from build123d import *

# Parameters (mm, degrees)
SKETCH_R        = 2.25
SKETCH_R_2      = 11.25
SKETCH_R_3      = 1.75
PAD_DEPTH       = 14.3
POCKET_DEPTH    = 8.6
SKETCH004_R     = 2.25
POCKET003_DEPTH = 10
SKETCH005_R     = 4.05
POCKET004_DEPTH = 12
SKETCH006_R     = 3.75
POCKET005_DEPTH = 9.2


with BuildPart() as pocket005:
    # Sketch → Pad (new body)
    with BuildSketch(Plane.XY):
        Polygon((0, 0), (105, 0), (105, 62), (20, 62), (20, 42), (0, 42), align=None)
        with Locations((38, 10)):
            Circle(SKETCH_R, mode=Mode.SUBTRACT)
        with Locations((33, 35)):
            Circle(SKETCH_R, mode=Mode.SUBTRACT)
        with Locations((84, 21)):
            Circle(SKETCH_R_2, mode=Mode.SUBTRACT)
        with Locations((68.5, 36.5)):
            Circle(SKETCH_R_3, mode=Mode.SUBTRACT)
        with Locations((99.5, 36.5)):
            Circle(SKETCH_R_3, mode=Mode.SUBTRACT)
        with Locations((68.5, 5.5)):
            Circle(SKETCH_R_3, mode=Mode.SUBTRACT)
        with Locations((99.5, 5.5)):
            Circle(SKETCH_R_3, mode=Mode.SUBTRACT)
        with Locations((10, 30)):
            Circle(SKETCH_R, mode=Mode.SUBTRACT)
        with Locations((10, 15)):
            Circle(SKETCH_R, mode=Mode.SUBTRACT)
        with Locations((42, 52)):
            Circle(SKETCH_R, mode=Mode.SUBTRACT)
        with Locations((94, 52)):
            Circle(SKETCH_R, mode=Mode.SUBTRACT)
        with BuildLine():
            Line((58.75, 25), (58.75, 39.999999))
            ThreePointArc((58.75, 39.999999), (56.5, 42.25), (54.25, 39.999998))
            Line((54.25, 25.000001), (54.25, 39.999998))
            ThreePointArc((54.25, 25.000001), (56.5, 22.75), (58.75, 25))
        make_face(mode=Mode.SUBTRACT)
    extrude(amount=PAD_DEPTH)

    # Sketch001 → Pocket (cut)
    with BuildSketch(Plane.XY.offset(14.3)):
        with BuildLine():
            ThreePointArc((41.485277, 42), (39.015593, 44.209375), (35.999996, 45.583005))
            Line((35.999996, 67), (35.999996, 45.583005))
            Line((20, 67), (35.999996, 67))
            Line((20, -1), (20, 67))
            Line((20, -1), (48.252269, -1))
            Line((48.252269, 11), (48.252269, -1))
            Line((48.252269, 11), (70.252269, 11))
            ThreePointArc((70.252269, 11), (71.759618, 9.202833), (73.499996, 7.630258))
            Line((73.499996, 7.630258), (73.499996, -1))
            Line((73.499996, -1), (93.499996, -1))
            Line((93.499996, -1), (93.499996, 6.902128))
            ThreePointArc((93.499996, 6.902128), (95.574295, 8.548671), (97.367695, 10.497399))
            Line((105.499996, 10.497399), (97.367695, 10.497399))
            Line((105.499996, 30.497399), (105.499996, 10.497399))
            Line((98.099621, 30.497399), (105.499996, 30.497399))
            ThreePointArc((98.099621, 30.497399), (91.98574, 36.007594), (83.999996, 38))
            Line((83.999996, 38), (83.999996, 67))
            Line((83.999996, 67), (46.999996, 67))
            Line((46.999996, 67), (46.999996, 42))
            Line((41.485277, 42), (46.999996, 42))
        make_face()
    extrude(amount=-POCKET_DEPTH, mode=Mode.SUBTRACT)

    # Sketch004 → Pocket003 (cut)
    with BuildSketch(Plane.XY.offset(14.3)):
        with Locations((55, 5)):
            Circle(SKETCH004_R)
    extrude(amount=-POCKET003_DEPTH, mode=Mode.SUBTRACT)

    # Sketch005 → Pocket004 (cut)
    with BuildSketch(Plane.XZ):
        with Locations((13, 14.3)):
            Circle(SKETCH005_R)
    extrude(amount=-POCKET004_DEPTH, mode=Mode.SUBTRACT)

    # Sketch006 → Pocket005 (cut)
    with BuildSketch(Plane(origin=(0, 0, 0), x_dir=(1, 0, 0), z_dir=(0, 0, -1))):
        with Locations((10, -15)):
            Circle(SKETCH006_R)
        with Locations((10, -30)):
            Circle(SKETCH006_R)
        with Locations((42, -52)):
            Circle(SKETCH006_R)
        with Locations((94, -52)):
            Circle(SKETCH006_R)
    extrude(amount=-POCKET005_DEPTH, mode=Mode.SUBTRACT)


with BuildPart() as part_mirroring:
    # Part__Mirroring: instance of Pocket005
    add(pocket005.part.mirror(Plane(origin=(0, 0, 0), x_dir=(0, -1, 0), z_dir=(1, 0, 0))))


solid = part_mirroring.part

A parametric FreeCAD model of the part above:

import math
import FreeCAD as App
import Part
import Sketcher
from FreeCAD import Vector
Q = App.Units.Quantity

doc = App.newDocument("Part")
body = doc.addObject("PartDesign::Body", "Body")

# Sketch on XY plane
sketch1 = body.newObject("Sketcher::SketchObject", "Sketch")
sketch1.AttachmentSupport = (doc.getObject("XY_Plane"), [""])
sketch1.MapMode = "FlatFace"
sketch1.addGeometry(Part.LineSegment(Vector(0, 0, 0), Vector(105, 0, 0)), False)
sketch1.addGeometry(Part.LineSegment(Vector(105, 0, 0), Vector(105, 62, 0)), False)
sketch1.addGeometry(Part.LineSegment(Vector(105, 62, 0), Vector(20, 62, 0)), False)
sketch1.addGeometry(Part.LineSegment(Vector(20, 62, 0), Vector(20, 42, 0)), False)
sketch1.addGeometry(Part.LineSegment(Vector(20, 42, 0), Vector(0, 42, 0)), False)
sketch1.addGeometry(Part.LineSegment(Vector(0, 42, 0), Vector(0, 0, 0)), False)
sketch1.addGeometry(Part.Circle(Vector(10, 15, 0), Vector(0, 0, 1), 2.2), False)
sketch1.addGeometry(Part.Circle(Vector(38, 10, 0), Vector(0, 0, 1), 2.2), False)
sketch1.addGeometry(Part.Circle(Vector(68.5, 5.5, 0), Vector(0, 0, 1), 1.8), False)
sketch1.addGeometry(Part.Circle(Vector(99.5, 5.5, 0), Vector(0, 0, 1), 1.8), False)
sketch1.addGeometry(Part.Circle(Vector(84, 21, 0), Vector(0, 0, 1), 11.2), False)
sketch1.addGeometry(Part.Circle(Vector(10, 30, 0), Vector(0, 0, 1), 2.2), False)
sketch1.addGeometry(Part.Circle(Vector(33, 35, 0), Vector(0, 0, 1), 2.2), False)
sketch1.addGeometry(Part.Circle(Vector(42, 52, 0), Vector(0, 0, 1), 2.2), False)
sketch1.addGeometry(Part.LineSegment(Vector(58.8, 40, 0), Vector(58.8, 25, 0)), False)
sketch1.addGeometry(Part.ArcOfCircle(Part.Circle(Vector(56.5, 25, 0), Vector(0, 0, 1), 2.2), math.radians(180), math.radians(360)), False)
sketch1.addGeometry(Part.LineSegment(Vector(54.2, 25, 0), Vector(54.2, 40, 0)), False)
sketch1.addGeometry(Part.ArcOfCircle(Part.Circle(Vector(56.5, 40, 0), Vector(0, 0, 1), 2.2), math.radians(0), math.radians(180)), False)
sketch1.addGeometry(Part.Circle(Vector(68.5, 36.5, 0), Vector(0, 0, 1), 1.8), False)
sketch1.addGeometry(Part.Circle(Vector(99.5, 36.5, 0), Vector(0, 0, 1), 1.8), False)
sketch1.addGeometry(Part.Circle(Vector(94, 52, 0), Vector(0, 0, 1), 2.2), False)
sketch1.addConstraint(Sketcher.Constraint("Coincident", 0, 2, 1, 1))
sketch1.addConstraint(Sketcher.Constraint("Coincident", 1, 2, 2, 1))
sketch1.addConstraint(Sketcher.Constraint("Coincident", 2, 2, 3, 1))
sketch1.addConstraint(Sketcher.Constraint("Coincident", 3, 2, 4, 1))
sketch1.addConstraint(Sketcher.Constraint("Coincident", 4, 2, 5, 1))
sketch1.addConstraint(Sketcher.Constraint("Coincident", 5, 2, 0, 1))
sketch1.addConstraint(Sketcher.Constraint("Tangent", 14, 2, 15, 2))
sketch1.addConstraint(Sketcher.Constraint("Tangent", 15, 1, 16, 1))
sketch1.addConstraint(Sketcher.Constraint("Tangent", 16, 2, 17, 2))
sketch1.addConstraint(Sketcher.Constraint("Tangent", 17, 1, 14, 1))
sketch1.addConstraint(Sketcher.Constraint("Horizontal", 0))
sketch1.addConstraint(Sketcher.Constraint("Vertical", 1))
sketch1.addConstraint(Sketcher.Constraint("Horizontal", 2))
sketch1.addConstraint(Sketcher.Constraint("Vertical", 3))
sketch1.addConstraint(Sketcher.Constraint("Horizontal", 4))
sketch1.addConstraint(Sketcher.Constraint("Vertical", 5))
sketch1.addConstraint(Sketcher.Constraint("Vertical", 14))
sketch1.addConstraint(Sketcher.Constraint("Vertical", 16))
sketch1.addConstraint(Sketcher.Constraint("Coincident", 5, 2, -1, 1))
sketch1.addConstraint(Sketcher.Constraint("Equal", 6, 7))
sketch1.addConstraint(Sketcher.Constraint("Equal", 8, 9))
sketch1.addConstraint(Sketcher.Constraint("Equal", 7, 11))
sketch1.addConstraint(Sketcher.Constraint("Equal", 11, 12))
sketch1.addConstraint(Sketcher.Constraint("Equal", 12, 13))
sketch1.addConstraint(Sketcher.Constraint("Equal", 13, 15))
sketch1.addConstraint(Sketcher.Constraint("Equal", 9, 18))
sketch1.addConstraint(Sketcher.Constraint("Equal", 18, 19))
sketch1.addConstraint(Sketcher.Constraint("Equal", 17, 20))
sketch1.addConstraint(Sketcher.Constraint("Horizontal", 8, 3, 9, 3))
sketch1.addConstraint(Sketcher.Constraint("Horizontal", 18, 3, 19, 3))
sketch1.addConstraint(Sketcher.Constraint("Horizontal", 13, 3, 20, 3))
sketch1.addConstraint(Sketcher.Constraint("Vertical", 6, 3, 11, 3))
sketch1.addConstraint(Sketcher.Constraint("Vertical", 8, 3, 18, 3))
sketch1.addConstraint(Sketcher.Constraint("Vertical", 9, 3, 19, 3))
sketch1.addConstraint(Sketcher.Constraint("Equal", 4, 3))
sketch1.addConstraint(Sketcher.Constraint("Diameter", 6, Q("4.5 mm")))
sketch1.addConstraint(Sketcher.Constraint("Diameter", 8, Q("3.5 mm")))
sketch1.addConstraint(Sketcher.Constraint("Diameter", 10, Q("22.5 mm")))
sketch1.addConstraint(Sketcher.Constraint("DistanceX", 0, 1, 0, 2, Q("105 mm")))
sketch1.addConstraint(Sketcher.Constraint("DistanceX", 2, 2, 2, 1, Q("85 mm")))
sketch1.addConstraint(Sketcher.Constraint("DistanceY", 1, 1, 1, 2, Q("62 mm")))
sketch1.addConstraint(Sketcher.Constraint("DistanceY", 14, 2, 14, 1, Q("14.999999 mm")))
sketch1.addConstraint(Sketcher.Constraint("DistanceX", -1, 1, 6, 3, Q("10 mm")))
sketch1.addConstraint(Sketcher.Constraint("DistanceY", -1, 1, 6, 3, Q("15 mm")))
sketch1.addConstraint(Sketcher.Constraint("DistanceX", -1, 1, 7, 3, Q("38 mm")))
sketch1.addConstraint(Sketcher.Constraint("DistanceY", -1, 1, 7, 3, Q("10 mm")))
sketch1.addConstraint(Sketcher.Constraint("DistanceX", -1, 1, 10, 3, Q("84 mm")))
sketch1.addConstraint(Sketcher.Constraint("DistanceY", -1, 1, 10, 3, Q("21 mm")))
sketch1.addConstraint(Sketcher.Constraint("DistanceY", -1, 1, 11, 3, Q("30 mm")))
sketch1.addConstraint(Sketcher.Constraint("DistanceX", -1, 1, 12, 3, Q("33 mm")))
sketch1.addConstraint(Sketcher.Constraint("DistanceY", -1, 1, 12, 3, Q("35 mm")))
sketch1.addConstraint(Sketcher.Constraint("DistanceX", -1, 1, 13, 3, Q("42 mm")))
sketch1.addConstraint(Sketcher.Constraint("DistanceY", -1, 1, 13, 3, Q("52 mm")))
sketch1.addConstraint(Sketcher.Constraint("DistanceY", -1, 1, 15, 3, Q("25 mm")))
sketch1.addConstraint(Sketcher.Constraint("DistanceX", -1, 1, 20, 3, Q("94 mm")))
sketch1.addConstraint(Sketcher.Constraint("DistanceX", 8, 3, 9, 3, Q("31 mm")))
sketch1.addConstraint(Sketcher.Constraint("DistanceX", 15, 3, 8, 3, Q("12 mm")))
sketch1.addConstraint(Sketcher.Constraint("DistanceY", 8, 3, 18, 3, Q("31 mm")))
sketch1.addConstraint(Sketcher.Constraint("DistanceX", -1, 1, 8, 3, Q("68.5 mm")))
sketch1.addConstraint(Sketcher.Constraint("DistanceY", -1, 1, 8, 3, Q("5.5 mm")))
pad1 = body.newObject("PartDesign::Pad", "Pad")
pad1.Profile = sketch1
pad1.Length = 14.3

# Sketch on XY plane
sketch2 = body.newObject("Sketcher::SketchObject", "Sketch001")
sketch2.AttachmentSupport = (doc.getObject("XY_Plane"), [""])
sketch2.MapMode = "FlatFace"
sketch2.AttachmentOffset = App.Placement(Vector(0, 0, 14.3), App.Rotation())
sketch2.addGeometry(Part.ArcOfCircle(Part.Circle(Vector(33, 35, 0), Vector(0, 0, 1), 11), math.radians(40), math.radians(74)), False)
sketch2.addGeometry(Part.LineSegment(Vector(36, 45.6, 0), Vector(36, 67, 0)), False)
sketch2.addGeometry(Part.LineSegment(Vector(36, 67, 0), Vector(20, 67, 0)), False)
sketch2.addGeometry(Part.LineSegment(Vector(20, 67, 0), Vector(20, -1, 0)), False)
sketch2.addGeometry(Part.LineSegment(Vector(20, -1, 0), Vector(48.3, -1, 0)), False)
sketch2.addGeometry(Part.LineSegment(Vector(48.3, -1, 0), Vector(48.3, 11, 0)), False)
sketch2.addGeometry(Part.LineSegment(Vector(48.3, 11, 0), Vector(70.3, 11, 0)), False)
sketch2.addGeometry(Part.ArcOfCircle(Part.Circle(Vector(84, 21, 0), Vector(0, 0, 1), 17), math.radians(-143.97), math.radians(-128.14)), False)
sketch2.addGeometry(Part.LineSegment(Vector(73.5, 7.6, 0), Vector(73.5, -1, 0)), False)
sketch2.addGeometry(Part.LineSegment(Vector(73.5, -1, 0), Vector(93.5, -1, 0)), False)
sketch2.addGeometry(Part.LineSegment(Vector(93.5, -1, 0), Vector(93.5, 6.9, 0)), False)
sketch2.addGeometry(Part.ArcOfCircle(Part.Circle(Vector(84, 21, 0), Vector(0, 0, 1), 17), math.radians(-56.03), math.radians(-38.16)), False)
sketch2.addGeometry(Part.LineSegment(Vector(97.4, 10.5, 0), Vector(105.5, 10.5, 0)), False)
sketch2.addGeometry(Part.LineSegment(Vector(105.5, 10.5, 0), Vector(105.5, 30.5, 0)), False)
sketch2.addGeometry(Part.LineSegment(Vector(105.5, 30.5, 0), Vector(98.1, 30.5, 0)), False)
sketch2.addGeometry(Part.ArcOfCircle(Part.Circle(Vector(84, 21, 0), Vector(0, 0, 1), 17), math.radians(34), math.radians(90)), False)
sketch2.addGeometry(Part.LineSegment(Vector(84, 38, 0), Vector(84, 67, 0)), False)
sketch2.addGeometry(Part.LineSegment(Vector(84, 67, 0), Vector(47, 67, 0)), False)
sketch2.addGeometry(Part.LineSegment(Vector(47, 67, 0), Vector(47, 42, 0)), False)
sketch2.addGeometry(Part.LineSegment(Vector(47, 42, 0), Vector(41.5, 42, 0)), False)
sketch2.addConstraint(Sketcher.Constraint("Coincident", 0, 2, 1, 1))
sketch2.addConstraint(Sketcher.Constraint("Coincident", 1, 2, 2, 1))
sketch2.addConstraint(Sketcher.Constraint("Coincident", 2, 2, 3, 1))
sketch2.addConstraint(Sketcher.Constraint("Coincident", 3, 2, 4, 1))
sketch2.addConstraint(Sketcher.Constraint("Coincident", 4, 2, 5, 1))
sketch2.addConstraint(Sketcher.Constraint("Coincident", 5, 2, 6, 1))
sketch2.addConstraint(Sketcher.Constraint("Coincident", 6, 2, 7, 1))
sketch2.addConstraint(Sketcher.Constraint("Coincident", 7, 2, 8, 1))
sketch2.addConstraint(Sketcher.Constraint("Coincident", 8, 2, 9, 1))
sketch2.addConstraint(Sketcher.Constraint("Coincident", 9, 2, 10, 1))
sketch2.addConstraint(Sketcher.Constraint("Coincident", 10, 2, 11, 1))
sketch2.addConstraint(Sketcher.Constraint("Coincident", 11, 2, 12, 1))
sketch2.addConstraint(Sketcher.Constraint("Coincident", 12, 2, 13, 1))
sketch2.addConstraint(Sketcher.Constraint("Coincident", 13, 2, 14, 1))
sketch2.addConstraint(Sketcher.Constraint("Coincident", 14, 2, 15, 1))
sketch2.addConstraint(Sketcher.Constraint("Coincident", 15, 2, 16, 1))
sketch2.addConstraint(Sketcher.Constraint("Coincident", 16, 2, 17, 1))
sketch2.addConstraint(Sketcher.Constraint("Coincident", 17, 2, 18, 1))
sketch2.addConstraint(Sketcher.Constraint("Coincident", 18, 2, 19, 1))
sketch2.addConstraint(Sketcher.Constraint("Coincident", 19, 2, 0, 1))
sketch2.addConstraint(Sketcher.Constraint("Vertical", 1))
sketch2.addConstraint(Sketcher.Constraint("Horizontal", 2))
sketch2.addConstraint(Sketcher.Constraint("Vertical", 3))
sketch2.addConstraint(Sketcher.Constraint("Horizontal", 4))
sketch2.addConstraint(Sketcher.Constraint("Vertical", 5))
sketch2.addConstraint(Sketcher.Constraint("Horizontal", 6))
sketch2.addConstraint(Sketcher.Constraint("Vertical", 8))
sketch2.addConstraint(Sketcher.Constraint("Horizontal", 9))
sketch2.addConstraint(Sketcher.Constraint("Vertical", 10))
sketch2.addConstraint(Sketcher.Constraint("Horizontal", 12))
sketch2.addConstraint(Sketcher.Constraint("Vertical", 13))
sketch2.addConstraint(Sketcher.Constraint("Horizontal", 14))
sketch2.addConstraint(Sketcher.Constraint("Vertical", 16))
sketch2.addConstraint(Sketcher.Constraint("Horizontal", 17))
sketch2.addConstraint(Sketcher.Constraint("Vertical", 18))
sketch2.addConstraint(Sketcher.Constraint("Horizontal", 19))
sketch2.addConstraint(Sketcher.Constraint("Coincident", 15, 3, 7, 3))
sketch2.addConstraint(Sketcher.Constraint("Horizontal", 4, 2, 8, 2))
sketch2.addConstraint(Sketcher.Constraint("Horizontal", 2, 2, 16, 2))
sketch2.addConstraint(Sketcher.Constraint("Equal", 9, 13))
sketch2.addConstraint(Sketcher.Constraint("Radius", 0, Q("10.999999 mm")))
sketch2.addConstraint(Sketcher.Constraint("DistanceX", 6, 1, 6, 2, Q("22 mm")))
sketch2.addConstraint(Sketcher.Constraint("DistanceX", 9, 1, 9, 2, Q("20 mm")))
sketch2.addConstraint(Sketcher.Constraint("DistanceX", 17, 2, 17, 1, Q("37 mm")))
sketch2.addConstraint(Sketcher.Constraint("DistanceY", 3, 2, 3, 1, Q("68 mm")))
sketch2.addConstraint(Sketcher.Constraint("DistanceY", 5, 1, 5, 2, Q("12 mm")))
sketch2.addConstraint(Sketcher.Constraint("DistanceY", 16, 1, 16, 2, Q("29 mm")))
sketch2.addConstraint(Sketcher.Constraint("DistanceY", 18, 2, 18, 1, Q("25 mm")))
sketch2.addConstraint(Sketcher.Constraint("DistanceY", -1, 1, 0, 3, Q("35.000001 mm")))
sketch2.addConstraint(Sketcher.Constraint("DistanceY", -1, 1, 1, 2, Q("67 mm")))
sketch2.addConstraint(Sketcher.Constraint("DistanceX", -1, 1, 2, 2, Q("20 mm")))
sketch2.addConstraint(Sketcher.Constraint("DistanceX", 0, 3, 0, 2, Q("3 mm")))
sketch2.addConstraint(Sketcher.Constraint("DistanceX", 10, 2, 12, 2, Q("12 mm")))
sketch2.addConstraint(Sketcher.Constraint("DistanceX", 1, 2, 17, 2, Q("11 mm")))
sketch2.addConstraint(Sketcher.Constraint("DistanceX", 15, 2, 13, 2, Q("21.5 mm")))
sketch2.addConstraint(Sketcher.Constraint("Radius", 7, Q("16.99999 mm")))
sketch2.addConstraint(Sketcher.Constraint("Radius", 11, Q("17.00002 mm")))
sketch2.addConstraint(Sketcher.Constraint("DistanceX", 12, 1, 12, 2, Q("8.132301 mm")))
sketch2.addConstraint(Sketcher.Constraint("Radius", 15, Q("17.000005 mm")))
sketch2.addConstraint(Sketcher.Constraint("DistanceX", 4, 1, 4, 2, Q("28.252269 mm")))
sketch2.addConstraint(Sketcher.Constraint("DistanceY", 8, 2, 8, 1, Q("8.630258 mm")))
sketch2.addConstraint(Sketcher.Constraint("DistanceY", 10, 1, 10, 2, Q("7.902128 mm")))
sketch2.addConstraint(Sketcher.Constraint("DistanceY", -1, 1, 11, 2, Q("10.497399 mm")))
pocket1 = body.newObject("PartDesign::Pocket", "Pocket")
pocket1.Profile = sketch2
pocket1.Length = 8.6

# Sketch on XY plane
sketch3 = body.newObject("Sketcher::SketchObject", "Sketch002")
sketch3.AttachmentSupport = (doc.getObject("XY_Plane"), [""])
sketch3.MapMode = "FlatFace"
sketch3.AttachmentOffset = App.Placement(Vector(0, 0, 14.3), App.Rotation())
sketch3.addGeometry(Part.Circle(Vector(55, 5, 0), Vector(0, 0, 1), 2.2), False)
sketch3.addConstraint(Sketcher.Constraint("Diameter", 0, Q("4.5 mm")))
sketch3.addConstraint(Sketcher.Constraint("DistanceX", -1, 1, 0, 3, Q("55 mm")))
sketch3.addConstraint(Sketcher.Constraint("DistanceY", -1, 1, 0, 3, Q("5 mm")))
pocket2 = body.newObject("PartDesign::Pocket", "Pocket001")
pocket2.Profile = sketch3
pocket2.Length = 10

# Sketch on XZ plane
sketch4 = body.newObject("Sketcher::SketchObject", "Sketch003")
sketch4.AttachmentSupport = (doc.getObject("XZ_Plane"), [""])
sketch4.MapMode = "FlatFace"
sketch4.addGeometry(Part.Circle(Vector(13, 14.3, 0), Vector(0, 0, 1), 4), False)
sketch4.addConstraint(Sketcher.Constraint("Diameter", 0, Q("8.1 mm")))
sketch4.addConstraint(Sketcher.Constraint("DistanceX", -1, 1, 0, 3, Q("13 mm")))
sketch4.addConstraint(Sketcher.Constraint("DistanceY", -1, 1, 0, 3, Q("14.3 mm")))
pocket3 = body.newObject("PartDesign::Pocket", "Pocket002")
pocket3.Profile = sketch4
pocket3.Length = 12

# Sketch on XY plane
sketch5 = body.newObject("Sketcher::SketchObject", "Sketch004")
sketch5.AttachmentSupport = (doc.getObject("XY_Plane"), [""])
sketch5.MapMode = "FlatFace"
sketch5.addGeometry(Part.Circle(Vector(10, 15, 0), Vector(0, 0, 1), 3.8), False)
sketch5.addGeometry(Part.Circle(Vector(10, 30, 0), Vector(0, 0, 1), 3.8), False)
sketch5.addGeometry(Part.Circle(Vector(42, 52, 0), Vector(0, 0, 1), 3.8), False)
sketch5.addGeometry(Part.Circle(Vector(94, 52, 0), Vector(0, 0, 1), 3.8), False)
sketch5.addConstraint(Sketcher.Constraint("Equal", 0, 1))
sketch5.addConstraint(Sketcher.Constraint("Equal", 1, 2))
sketch5.addConstraint(Sketcher.Constraint("Equal", 2, 3))
sketch5.addConstraint(Sketcher.Constraint("Horizontal", 2, 3, 3, 3))
sketch5.addConstraint(Sketcher.Constraint("Vertical", 0, 3, 1, 3))
sketch5.addConstraint(Sketcher.Constraint("Diameter", 0, Q("7.5 mm")))
sketch5.addConstraint(Sketcher.Constraint("DistanceX", -1, 1, 0, 3, Q("10 mm")))
sketch5.addConstraint(Sketcher.Constraint("DistanceY", -1, 1, 0, 3, Q("15 mm")))
sketch5.addConstraint(Sketcher.Constraint("DistanceY", -1, 1, 1, 3, Q("30 mm")))
sketch5.addConstraint(Sketcher.Constraint("DistanceX", -1, 1, 2, 3, Q("42 mm")))
sketch5.addConstraint(Sketcher.Constraint("DistanceY", -1, 1, 2, 3, Q("52 mm")))
sketch5.addConstraint(Sketcher.Constraint("DistanceX", -1, 1, 3, 3, Q("94 mm")))
pocket4 = body.newObject("PartDesign::Pocket", "Pocket003")
pocket4.Profile = sketch5
pocket4.Length = 9.2
pocket4.Reversed = True
body2 = doc.addObject("PartDesign::Body", "Body001")
doc.recompute()

mirroring = doc.addObject("Part::Mirroring", "Mirroring")
mirroring.Source = body
mirroring.Base = Vector(0, 0, 0)
mirroring.Normal = Vector(1, 0, 0)
body2.BaseFeature = mirroring
doc.recompute()
body.Visibility = False
mirroring.Visibility = False

doc.recompute()
